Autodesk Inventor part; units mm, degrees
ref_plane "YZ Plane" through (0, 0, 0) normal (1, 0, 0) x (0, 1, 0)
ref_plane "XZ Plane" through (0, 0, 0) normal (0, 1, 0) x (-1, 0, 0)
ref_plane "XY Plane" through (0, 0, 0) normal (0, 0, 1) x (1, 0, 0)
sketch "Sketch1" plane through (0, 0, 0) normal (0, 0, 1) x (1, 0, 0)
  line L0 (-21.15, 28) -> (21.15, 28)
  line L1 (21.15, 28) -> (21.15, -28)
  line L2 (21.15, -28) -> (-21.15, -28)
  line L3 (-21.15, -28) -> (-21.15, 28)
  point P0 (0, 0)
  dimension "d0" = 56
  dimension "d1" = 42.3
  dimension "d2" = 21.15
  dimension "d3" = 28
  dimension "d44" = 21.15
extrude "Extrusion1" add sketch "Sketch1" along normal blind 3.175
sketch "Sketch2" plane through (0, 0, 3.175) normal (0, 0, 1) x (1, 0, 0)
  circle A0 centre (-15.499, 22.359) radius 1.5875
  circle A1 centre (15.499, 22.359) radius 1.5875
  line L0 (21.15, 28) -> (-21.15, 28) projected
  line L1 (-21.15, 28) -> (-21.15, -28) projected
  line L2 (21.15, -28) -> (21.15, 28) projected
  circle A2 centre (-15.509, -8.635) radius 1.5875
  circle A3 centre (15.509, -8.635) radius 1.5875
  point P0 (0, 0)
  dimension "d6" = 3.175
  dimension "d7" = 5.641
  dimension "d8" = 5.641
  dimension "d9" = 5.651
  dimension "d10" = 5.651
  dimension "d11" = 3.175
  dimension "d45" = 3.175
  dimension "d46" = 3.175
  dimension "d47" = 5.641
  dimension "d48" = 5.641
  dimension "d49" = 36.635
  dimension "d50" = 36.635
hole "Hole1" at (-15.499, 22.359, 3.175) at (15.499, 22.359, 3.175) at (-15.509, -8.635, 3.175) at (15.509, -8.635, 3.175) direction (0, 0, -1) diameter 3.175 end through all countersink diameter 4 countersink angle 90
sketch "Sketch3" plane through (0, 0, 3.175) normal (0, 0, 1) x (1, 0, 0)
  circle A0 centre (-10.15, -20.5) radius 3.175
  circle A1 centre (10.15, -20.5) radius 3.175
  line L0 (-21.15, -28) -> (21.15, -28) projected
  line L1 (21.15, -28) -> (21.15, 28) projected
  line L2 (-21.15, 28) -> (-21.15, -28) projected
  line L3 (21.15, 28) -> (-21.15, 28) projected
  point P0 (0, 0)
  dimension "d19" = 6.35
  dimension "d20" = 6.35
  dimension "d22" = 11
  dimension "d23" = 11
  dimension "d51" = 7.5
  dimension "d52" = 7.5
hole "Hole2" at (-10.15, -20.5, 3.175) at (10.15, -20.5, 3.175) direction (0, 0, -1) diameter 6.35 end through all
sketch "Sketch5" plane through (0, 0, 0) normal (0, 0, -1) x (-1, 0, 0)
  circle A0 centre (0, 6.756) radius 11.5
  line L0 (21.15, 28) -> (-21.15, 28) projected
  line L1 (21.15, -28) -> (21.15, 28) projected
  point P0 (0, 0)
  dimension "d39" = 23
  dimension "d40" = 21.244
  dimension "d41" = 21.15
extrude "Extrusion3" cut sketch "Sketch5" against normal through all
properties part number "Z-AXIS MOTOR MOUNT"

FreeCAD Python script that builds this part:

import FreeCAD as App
import Part
import Sketcher

V = App.Vector
Q = App.Units.Quantity


def add_polygon(sketch, points):
    """Adds a closed chain of lines whose ends are joined by coincident constraints."""
    first, n = sketch.GeometryCount, len(points)
    for a, b in zip(points, points[1:] + points[:1]):
        sketch.addGeometry(Part.LineSegment(App.Vector(*a, 0), App.Vector(*b, 0)), False)
    for i in range(n):
        sketch.addConstraint(Sketcher.Constraint("Coincident", first + i, 2, first + (i + 1) % n, 1))

doc = App.newDocument("Part")
body = doc.addObject("PartDesign::Body", "Body")

sketch1 = doc.addObject("Sketcher::SketchObject", "Sketch")
body.addObject(sketch1)
sketch1.AttachmentSupport = (doc.XY_Plane, [""])
sketch1.MapMode = "FlatFace"
add_polygon(sketch1, [(21, 28), (-21, 28), (-21, -28), (21, -28)])
sketch1.addConstraint(Sketcher.Constraint("Horizontal", 0))
sketch1.addConstraint(Sketcher.Constraint("Vertical", 1))
sketch1.addConstraint(Sketcher.Constraint("Horizontal", 2))
sketch1.addConstraint(Sketcher.Constraint("Vertical", 3))
sketch1.addConstraint(Sketcher.Constraint("Symmetric", 0, 2, 2, 2, -1, 1))
sketch1.addConstraint(Sketcher.Constraint("DistanceY", 1, 2, 1, 1, Q("56 mm")))
sketch1.addConstraint(Sketcher.Constraint("DistanceX", 0, 2, 0, 1, Q("42.3 mm")))
pad1 = doc.addObject("PartDesign::Pad", "Pad")
body.addObject(pad1)
pad1.Profile = sketch1
pad1.Length = 3.175

sketch2 = doc.addObject("Sketcher::SketchObject", "Sketch001")
body.addObject(sketch2)
sketch2.AttachmentSupport = (doc.XY_Plane, [""])
sketch2.MapMode = "FlatFace"
sketch2.AttachmentOffset = App.Placement(V(0, 0, 3.175), App.Rotation())
sketch2.addGeometry(Part.Circle(V(-15.5, 22.4, 0), V(0, 0, 1), 1.6), False)
sketch2.addGeometry(Part.Circle(V(15.5, 22.4, 0), V(0, 0, 1), 1.6), False)
sketch2.addGeometry(Part.Circle(V(-15.5, -8.6, 0), V(0, 0, 1), 1.6), False)
sketch2.addGeometry(Part.Circle(V(15.5, -8.6, 0), V(0, 0, 1), 1.6), False)
sketch2.addConstraint(Sketcher.Constraint("Equal", 0, 1))
sketch2.addConstraint(Sketcher.Constraint("Equal", 1, 2))
sketch2.addConstraint(Sketcher.Constraint("Equal", 2, 3))
sketch2.addConstraint(Sketcher.Constraint("Symmetric", 0, 3, 1, 3, -2))
sketch2.addConstraint(Sketcher.Constraint("Symmetric", 2, 3, 3, 3, -2))
sketch2.addConstraint(Sketcher.Constraint("Diameter", 0, Q("3.175 mm")))
sketch2.addConstraint(Sketcher.Constraint("DistanceX", 2, 3, 0, 3, Q("0.01 mm")))
sketch2.addConstraint(Sketcher.Constraint("DistanceX", 0, 3, -1, 1, Q("15.499 mm")))
sketch2.addConstraint(Sketcher.Constraint("DistanceY", -1, 1, 0, 3, Q("22.359 mm")))
sketch2.addConstraint(Sketcher.Constraint("DistanceY", 2, 3, -1, 1, Q("8.635 mm")))
doc.recompute()
hole = doc.addObject("PartDesign::Hole", "Hole")
body.addObject(hole)
hole.Profile = sketch2
hole.ThreadType = "None"
hole.Diameter = 3.175
hole.DepthType = "ThroughAll"
hole.HoleCutType = "Countersink"
hole.HoleCutDiameter = 4
hole.HoleCutCountersinkAngle = 90

sketch3 = doc.addObject("Sketcher::SketchObject", "Sketch002")
body.addObject(sketch3)
sketch3.AttachmentSupport = (doc.XY_Plane, [""])
sketch3.MapMode = "FlatFace"
sketch3.AttachmentOffset = App.Placement(V(0, 0, 3.175), App.Rotation())
sketch3.addGeometry(Part.Circle(V(-10.2, -20.5, 0), V(0, 0, 1), 3.2), False)
sketch3.addGeometry(Part.Circle(V(10.2, -20.5, 0), V(0, 0, 1), 3.2), False)
sketch3.addConstraint(Sketcher.Constraint("Equal", 0, 1))
sketch3.addConstraint(Sketcher.Constraint("Symmetric", 0, 3, 1, 3, -2))
sketch3.addConstraint(Sketcher.Constraint("Diameter", 0, Q("6.35 mm")))
sketch3.addConstraint(Sketcher.Constraint("DistanceY", 0, 3, -1, 1, Q("20.5 mm")))
sketch3.addConstraint(Sketcher.Constraint("DistanceX", 0, 3, 1, 3, Q("20.3 mm")))
doc.recompute()
hole2 = doc.addObject("PartDesign::Hole", "Hole001")
body.addObject(hole2)
hole2.Profile = sketch3
hole2.ThreadType = "None"
hole2.Diameter = 6.35
hole2.DepthType = "ThroughAll"

sketch4 = doc.addObject("Sketcher::SketchObject", "Sketch003")
body.addObject(sketch4)
sketch4.AttachmentSupport = (doc.XY_Plane, [""])
sketch4.MapMode = "FlatFace"
sketch4.addGeometry(Part.Circle(V(0, 7, 0), V(0, 0, 1), 12), False)
sketch4.addConstraint(Sketcher.Constraint("PointOnObject", 0, 3, -2))
sketch4.addConstraint(Sketcher.Constraint("Diameter", 0, Q("23 mm")))
sketch4.addConstraint(Sketcher.Constraint("DistanceY", -1, 1, 0, 3, Q("6.756 mm")))
pocket1 = doc.addObject("PartDesign::Pocket", "Pocket")
body.addObject(pocket1)
pocket1.Profile = sketch4
pocket1.Type = "ThroughAll"
pocket1.Reversed = True

doc.recompute()
